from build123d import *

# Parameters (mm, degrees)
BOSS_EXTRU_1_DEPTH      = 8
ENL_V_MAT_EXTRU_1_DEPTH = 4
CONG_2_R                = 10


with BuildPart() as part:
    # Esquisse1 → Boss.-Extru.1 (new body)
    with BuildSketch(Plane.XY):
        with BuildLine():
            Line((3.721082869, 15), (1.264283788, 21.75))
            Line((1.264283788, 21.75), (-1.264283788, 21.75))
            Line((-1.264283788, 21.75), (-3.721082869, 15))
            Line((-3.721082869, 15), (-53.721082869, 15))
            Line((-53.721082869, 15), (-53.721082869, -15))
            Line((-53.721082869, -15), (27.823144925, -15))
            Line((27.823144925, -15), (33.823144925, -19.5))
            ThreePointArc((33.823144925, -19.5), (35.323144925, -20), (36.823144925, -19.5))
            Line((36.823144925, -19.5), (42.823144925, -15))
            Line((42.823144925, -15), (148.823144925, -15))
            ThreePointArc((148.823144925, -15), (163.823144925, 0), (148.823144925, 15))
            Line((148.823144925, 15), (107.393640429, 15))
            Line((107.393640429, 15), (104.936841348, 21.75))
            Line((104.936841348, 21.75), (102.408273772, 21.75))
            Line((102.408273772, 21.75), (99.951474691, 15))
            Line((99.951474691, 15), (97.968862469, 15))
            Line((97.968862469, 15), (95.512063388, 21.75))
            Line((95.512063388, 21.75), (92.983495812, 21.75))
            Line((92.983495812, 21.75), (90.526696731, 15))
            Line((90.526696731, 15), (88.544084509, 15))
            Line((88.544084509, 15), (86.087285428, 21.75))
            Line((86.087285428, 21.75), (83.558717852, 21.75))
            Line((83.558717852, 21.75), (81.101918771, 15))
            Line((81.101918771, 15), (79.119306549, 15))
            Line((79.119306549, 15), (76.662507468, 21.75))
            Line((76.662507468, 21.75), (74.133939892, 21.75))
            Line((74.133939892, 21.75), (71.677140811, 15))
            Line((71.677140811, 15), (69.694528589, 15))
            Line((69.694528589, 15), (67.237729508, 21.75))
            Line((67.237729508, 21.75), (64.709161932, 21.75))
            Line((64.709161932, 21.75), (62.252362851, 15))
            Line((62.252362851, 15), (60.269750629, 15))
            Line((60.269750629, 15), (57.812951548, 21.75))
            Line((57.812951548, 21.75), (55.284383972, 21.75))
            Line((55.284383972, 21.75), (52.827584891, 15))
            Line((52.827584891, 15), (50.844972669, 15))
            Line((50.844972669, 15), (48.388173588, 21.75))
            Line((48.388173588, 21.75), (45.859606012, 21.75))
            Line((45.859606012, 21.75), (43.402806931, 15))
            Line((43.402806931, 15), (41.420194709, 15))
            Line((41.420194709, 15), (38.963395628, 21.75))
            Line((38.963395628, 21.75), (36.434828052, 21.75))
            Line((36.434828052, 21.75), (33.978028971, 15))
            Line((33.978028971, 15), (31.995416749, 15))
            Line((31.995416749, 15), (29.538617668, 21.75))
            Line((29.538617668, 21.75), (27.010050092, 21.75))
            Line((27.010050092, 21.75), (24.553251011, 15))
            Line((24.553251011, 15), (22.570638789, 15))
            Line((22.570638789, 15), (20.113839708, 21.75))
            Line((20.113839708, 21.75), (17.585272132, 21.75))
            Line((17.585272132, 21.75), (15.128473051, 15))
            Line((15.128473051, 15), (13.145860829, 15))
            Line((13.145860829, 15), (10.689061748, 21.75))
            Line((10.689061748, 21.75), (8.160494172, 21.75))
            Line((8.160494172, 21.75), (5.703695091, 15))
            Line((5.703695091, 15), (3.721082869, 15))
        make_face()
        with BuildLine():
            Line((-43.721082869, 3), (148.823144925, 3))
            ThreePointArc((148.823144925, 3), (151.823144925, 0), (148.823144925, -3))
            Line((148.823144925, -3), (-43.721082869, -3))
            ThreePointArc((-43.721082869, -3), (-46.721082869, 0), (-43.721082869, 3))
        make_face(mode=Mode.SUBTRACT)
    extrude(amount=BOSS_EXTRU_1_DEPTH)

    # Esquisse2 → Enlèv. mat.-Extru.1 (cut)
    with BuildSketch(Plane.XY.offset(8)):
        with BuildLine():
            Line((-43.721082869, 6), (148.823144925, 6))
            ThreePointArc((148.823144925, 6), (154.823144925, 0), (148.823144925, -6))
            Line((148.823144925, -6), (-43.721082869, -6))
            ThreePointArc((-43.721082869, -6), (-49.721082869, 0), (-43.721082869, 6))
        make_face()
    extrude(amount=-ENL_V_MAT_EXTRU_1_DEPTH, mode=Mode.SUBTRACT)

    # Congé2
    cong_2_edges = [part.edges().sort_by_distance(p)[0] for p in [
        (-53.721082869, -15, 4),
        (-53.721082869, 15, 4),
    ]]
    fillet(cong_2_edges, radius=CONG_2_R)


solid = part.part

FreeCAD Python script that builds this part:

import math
import FreeCAD as App
import Part
import Sketcher
from FreeCAD import Vector
Q = App.Units.Quantity


def edges_at(feature, points):
    """Names of the edges that pass closest to the given points."""
    edges = feature.Shape.Edges
    near = lambda p: min(range(len(edges)), key=lambda i: edges[i].distToShape(Part.Vertex(*p))[0])
    return sorted({f"Edge{near(p) + 1}" for p in points})

doc = App.newDocument("Part")
params = doc.addObject("Spreadsheet::Sheet", "Params")
for row, (alias, value) in enumerate([
    ("sketch1_radius", "15 mm"),
    ("sketch1_radius2", "3 mm"),
    ("sketch1_radius3", "2.5 mm"),
    ("sketch1_width", "50 mm"),
    ("sketch1_width2", "106 mm"),
    ("pad1_length", "8 mm"),
    ("sketch2_radius", "6 mm"),
    ("pocket1_length", "4 mm"),
    ("fillet_radius", "10 mm"),
], start=1):
    params.set(f"A{row}", alias)
    params.set(f"B{row}", "=" + value)
    params.setAlias(f"B{row}", alias)

body = doc.addObject("PartDesign::Body", "Body")

sketch1 = body.newObject("Sketcher::SketchObject", "Sketch")
sketch1.AttachmentSupport = (doc.getObject("XY_Plane"), [""])
sketch1.MapMode = "FlatFace"
sketch1.addGeometry(Part.LineSegment(Vector(3.7, 15, 0), Vector(1.3, 21.8, 0)), False)
sketch1.addGeometry(Part.LineSegment(Vector(1.3, 21.8, 0), Vector(-1.3, 21.8, 0)), False)
sketch1.addGeometry(Part.LineSegment(Vector(-1.3, 21.8, 0), Vector(-3.7, 15, 0)), False)
sketch1.addGeometry(Part.LineSegment(Vector(-3.7, 15, 0), Vector(-53.7, 15, 0)), False)
sketch1.addGeometry(Part.LineSegment(Vector(-53.7, 15, 0), Vector(-53.7, -15, 0)), False)
sketch1.addGeometry(Part.LineSegment(Vector(-53.7, -15, 0), Vector(27.8, -15, 0)), False)
sketch1.addGeometry(Part.LineSegment(Vector(27.8, -15, 0), Vector(33.8, -19.5, 0)), False)
sketch1.addGeometry(Part.ArcOfCircle(Part.Circle(Vector(35.3, -17.5, 0), Vector(0, 0, 1), 2.5), math.radians(-127), math.radians(-53)), False)
sketch1.addGeometry(Part.LineSegment(Vector(36.8, -19.5, 0), Vector(42.8, -15, 0)), False)
sketch1.addGeometry(Part.LineSegment(Vector(42.8, -15, 0), Vector(148.8, -15, 0)), False)
sketch1.addGeometry(Part.ArcOfCircle(Part.Circle(Vector(148.8, 0, 0), Vector(0, 0, 1), 15), math.radians(-90), math.radians(90)), False)
sketch1.addGeometry(Part.LineSegment(Vector(148.8, 15, 0), Vector(107.4, 15, 0)), False)
sketch1.addGeometry(Part.LineSegment(Vector(107.4, 15, 0), Vector(104.9, 21.8, 0)), False)
sketch1.addGeometry(Part.LineSegment(Vector(104.9, 21.8, 0), Vector(102.4, 21.8, 0)), False)
sketch1.addGeometry(Part.LineSegment(Vector(102.4, 21.8, 0), Vector(100, 15, 0)), False)
sketch1.addGeometry(Part.LineSegment(Vector(100, 15, 0), Vector(98, 15, 0)), False)
sketch1.addGeometry(Part.LineSegment(Vector(98, 15, 0), Vector(95.5, 21.8, 0)), False)
sketch1.addGeometry(Part.LineSegment(Vector(95.5, 21.8, 0), Vector(93, 21.8, 0)), False)
sketch1.addGeometry(Part.LineSegment(Vector(93, 21.8, 0), Vector(90.5, 15, 0)), False)
sketch1.addGeometry(Part.LineSegment(Vector(90.5, 15, 0), Vector(88.5, 15, 0)), False)
sketch1.addGeometry(Part.LineSegment(Vector(88.5, 15, 0), Vector(86.1, 21.8, 0)), False)
sketch1.addGeometry(Part.LineSegment(Vector(86.1, 21.8, 0), Vector(83.6, 21.8, 0)), False)
sketch1.addGeometry(Part.LineSegment(Vector(83.6, 21.8, 0), Vector(81.1, 15, 0)), False)
sketch1.addGeometry(Part.LineSegment(Vector(81.1, 15, 0), Vector(79.1, 15, 0)), False)
sketch1.addGeometry(Part.LineSegment(Vector(79.1, 15, 0), Vector(76.7, 21.8, 0)), False)
sketch1.addGeometry(Part.LineSegment(Vector(76.7, 21.8, 0), Vector(74.1, 21.8, 0)), False)
sketch1.addGeometry(Part.LineSegment(Vector(74.1, 21.8, 0), Vector(71.7, 15, 0)), False)
sketch1.addGeometry(Part.LineSegment(Vector(71.7, 15, 0), Vector(69.7, 15, 0)), False)
sketch1.addGeometry(Part.LineSegment(Vector(69.7, 15, 0), Vector(67.2, 21.8, 0)), False)
sketch1.addGeometry(Part.LineSegment(Vector(67.2, 21.8, 0), Vector(64.7, 21.8, 0)), False)
sketch1.addGeometry(Part.LineSegment(Vector(64.7, 21.8, 0), Vector(62.3, 15, 0)), False)
sketch1.addGeometry(Part.LineSegment(Vector(62.3, 15, 0), Vector(60.3, 15, 0)), False)
sketch1.addGeometry(Part.LineSegment(Vector(60.3, 15, 0), Vector(57.8, 21.8, 0)), False)
sketch1.addGeometry(Part.LineSegment(Vector(57.8, 21.8, 0), Vector(55.3, 21.8, 0)), False)
sketch1.addGeometry(Part.LineSegment(Vector(55.3, 21.8, 0), Vector(52.8, 15, 0)), False)
sketch1.addGeometry(Part.LineSegment(Vector(52.8, 15, 0), Vector(50.8, 15, 0)), False)
sketch1.addGeometry(Part.LineSegment(Vector(50.8, 15, 0), Vector(48.4, 21.8, 0)), False)
sketch1.addGeometry(Part.LineSegment(Vector(48.4, 21.8, 0), Vector(45.9, 21.8, 0)), False)
sketch1.addGeometry(Part.LineSegment(Vector(45.9, 21.8, 0), Vector(43.4, 15, 0)), False)
sketch1.addGeometry(Part.LineSegment(Vector(43.4, 15, 0), Vector(41.4, 15, 0)), False)
sketch1.addGeometry(Part.LineSegment(Vector(41.4, 15, 0), Vector(39, 21.8, 0)), False)
sketch1.addGeometry(Part.LineSegment(Vector(39, 21.8, 0), Vector(36.4, 21.8, 0)), False)
sketch1.addGeometry(Part.LineSegment(Vector(36.4, 21.8, 0), Vector(34, 15, 0)), False)
sketch1.addGeometry(Part.LineSegment(Vector(34, 15, 0), Vector(32, 15, 0)), False)
sketch1.addGeometry(Part.LineSegment(Vector(32, 15, 0), Vector(29.5, 21.8, 0)), False)
sketch1.addGeometry(Part.LineSegment(Vector(29.5, 21.8, 0), Vector(27, 21.8, 0)), False)
sketch1.addGeometry(Part.LineSegment(Vector(27, 21.8, 0), Vector(24.6, 15, 0)), False)
sketch1.addGeometry(Part.LineSegment(Vector(24.6, 15, 0), Vector(22.6, 15, 0)), False)
sketch1.addGeometry(Part.LineSegment(Vector(22.6, 15, 0), Vector(20.1, 21.8, 0)), False)
sketch1.addGeometry(Part.LineSegment(Vector(20.1, 21.8, 0), Vector(17.6, 21.8, 0)), False)
sketch1.addGeometry(Part.LineSegment(Vector(17.6, 21.8, 0), Vector(15.1, 15, 0)), False)
sketch1.addGeometry(Part.LineSegment(Vector(15.1, 15, 0), Vector(13.1, 15, 0)), False)
sketch1.addGeometry(Part.LineSegment(Vector(13.1, 15, 0), Vector(10.7, 21.8, 0)), False)
sketch1.addGeometry(Part.LineSegment(Vector(10.7, 21.8, 0), Vector(8.2, 21.8, 0)), False)
sketch1.addGeometry(Part.LineSegment(Vector(8.2, 21.8, 0), Vector(5.7, 15, 0)), False)
sketch1.addGeometry(Part.LineSegment(Vector(5.7, 15, 0), Vector(3.7, 15, 0)), False)
sketch1.addGeometry(Part.ArcOfCircle(Part.Circle(Vector(-43.7, 0, 0), Vector(0, 0, 1), 3), math.radians(90), math.radians(270)), False)
sketch1.addGeometry(Part.LineSegment(Vector(-43.7, 3, 0), Vector(148.8, 3, 0)), False)
sketch1.addGeometry(Part.ArcOfCircle(Part.Circle(Vector(148.8, 0, 0), Vector(0, 0, 1), 3), math.radians(-90), math.radians(90)), False)
sketch1.addGeometry(Part.LineSegment(Vector(148.8, -3, 0), Vector(-43.7, -3, 0)), False)
sketch1.addConstraint(Sketcher.Constraint("Coincident", 0, 2, 1, 1))
sketch1.addConstraint(Sketcher.Constraint("Coincident", 1, 2, 2, 1))
sketch1.addConstraint(Sketcher.Constraint("Coincident", 2, 2, 3, 1))
sketch1.addConstraint(Sketcher.Constraint("Coincident", 3, 2, 4, 1))
sketch1.addConstraint(Sketcher.Constraint("Coincident", 4, 2, 5, 1))
sketch1.addConstraint(Sketcher.Constraint("Coincident", 5, 2, 6, 1))
sketch1.addConstraint(Sketcher.Constraint("Tangent", 6, 2, 7, 1))
sketch1.addConstraint(Sketcher.Constraint("Tangent", 7, 2, 8, 1))
sketch1.addConstraint(Sketcher.Constraint("Coincident", 8, 2, 9, 1))
sketch1.addConstraint(Sketcher.Constraint("Tangent", 9, 2, 10, 1))
sketch1.addConstraint(Sketcher.Constraint("Tangent", 10, 2, 11, 1))
sketch1.addConstraint(Sketcher.Constraint("Coincident", 11, 2, 12, 1))
sketch1.addConstraint(Sketcher.Constraint("Coincident", 12, 2, 13, 1))
sketch1.addConstraint(Sketcher.Constraint("Coincident", 13, 2, 14, 1))
sketch1.addConstraint(Sketcher.Constraint("Coincident", 14, 2, 15, 1))
sketch1.addConstraint(Sketcher.Constraint("Coincident", 15, 2, 16, 1))
sketch1.addConstraint(Sketcher.Constraint("Coincident", 16, 2, 17, 1))
sketch1.addConstraint(Sketcher.Constraint("Coincident", 17, 2, 18, 1))
sketch1.addConstraint(Sketcher.Constraint("Coincident", 18, 2, 19, 1))
sketch1.addConstraint(Sketcher.Constraint("Coincident", 19, 2, 20, 1))
sketch1.addConstraint(Sketcher.Constraint("Coincident", 20, 2, 21, 1))
sketch1.addConstraint(Sketcher.Constraint("Coincident", 21, 2, 22, 1))
sketch1.addConstraint(Sketcher.Constraint("Coincident", 22, 2, 23, 1))
sketch1.addConstraint(Sketcher.Constraint("Coincident", 23, 2, 24, 1))
sketch1.addConstraint(Sketcher.Constraint("Coincident", 24, 2, 25, 1))
sketch1.addConstraint(Sketcher.Constraint("Coincident", 25, 2, 26, 1))
sketch1.addConstraint(Sketcher.Constraint("Coincident", 26, 2, 27, 1))
sketch1.addConstraint(Sketcher.Constraint("Coincident", 27, 2, 28, 1))
sketch1.addConstraint(Sketcher.Constraint("Coincident", 28, 2, 29, 1))
sketch1.addConstraint(Sketcher.Constraint("Coincident", 29, 2, 30, 1))
sketch1.addConstraint(Sketcher.Constraint("Coincident", 30, 2, 31, 1))
sketch1.addConstraint(Sketcher.Constraint("Coincident", 31, 2, 32, 1))
sketch1.addConstraint(Sketcher.Constraint("Coincident", 32, 2, 33, 1))
sketch1.addConstraint(Sketcher.Constraint("Coincident", 33, 2, 34, 1))
sketch1.addConstraint(Sketcher.Constraint("Coincident", 34, 2, 35, 1))
sketch1.addConstraint(Sketcher.Constraint("Coincident", 35, 2, 36, 1))
sketch1.addConstraint(Sketcher.Constraint("Coincident", 36, 2, 37, 1))
sketch1.addConstraint(Sketcher.Constraint("Coincident", 37, 2, 38, 1))
sketch1.addConstraint(Sketcher.Constraint("Coincident", 38, 2, 39, 1))
sketch1.addConstraint(Sketcher.Constraint("Coincident", 39, 2, 40, 1))
sketch1.addConstraint(Sketcher.Constraint("Coincident", 40, 2, 41, 1))
sketch1.addConstraint(Sketcher.Constraint("Coincident", 41, 2, 42, 1))
sketch1.addConstraint(Sketcher.Constraint("Coincident", 42, 2, 43, 1))
sketch1.addConstraint(Sketcher.Constraint("Coincident", 43, 2, 44, 1))
sketch1.addConstraint(Sketcher.Constraint("Coincident", 44, 2, 45, 1))
sketch1.addConstraint(Sketcher.Constraint("Coincident", 45, 2, 46, 1))
sketch1.addConstraint(Sketcher.Constraint("Coincident", 46, 2, 47, 1))
sketch1.addConstraint(Sketcher.Constraint("Coincident", 47, 2, 48, 1))
sketch1.addConstraint(Sketcher.Constraint("Coincident", 48, 2, 49, 1))
sketch1.addConstraint(Sketcher.Constraint("Coincident", 49, 2, 50, 1))
sketch1.addConstraint(Sketcher.Constraint("Coincident", 50, 2, 51, 1))
sketch1.addConstraint(Sketcher.Constraint("Coincident", 51, 2, 52, 1))
sketch1.addConstraint(Sketcher.Constraint("Coincident", 52, 2, 53, 1))
sketch1.addConstraint(Sketcher.Constraint("Coincident", 53, 2, 54, 1))
sketch1.addConstraint(Sketcher.Constraint("Coincident", 54, 2, 55, 1))
sketch1.addConstraint(Sketcher.Constraint("Coincident", 55, 2, 0, 1))
sketch1.addConstraint(Sketcher.Constraint("Tangent", 56, 1, 57, 1))
sketch1.addConstraint(Sketcher.Constraint("Tangent", 57, 2, 58, 2))
sketch1.addConstraint(Sketcher.Constraint("Tangent", 58, 1, 59, 1))
sketch1.addConstraint(Sketcher.Constraint("Tangent", 59, 2, 56, 2))
sketch1.addConstraint(Sketcher.Constraint("Horizontal", 1))
sketch1.addConstraint(Sketcher.Constraint("Horizontal", 3))
sketch1.addConstraint(Sketcher.Constraint("Vertical", 4))
sketch1.addConstraint(Sketcher.Constraint("Horizontal", 5))
sketch1.addConstraint(Sketcher.Constraint("Horizontal", 9))
sketch1.addConstraint(Sketcher.Constraint("Horizontal", 11))
sketch1.addConstraint(Sketcher.Constraint("Horizontal", 13))
sketch1.addConstraint(Sketcher.Constraint("Horizontal", 15))
sketch1.addConstraint(Sketcher.Constraint("Horizontal", 17))
sketch1.addConstraint(Sketcher.Constraint("Horizontal", 19))
sketch1.addConstraint(Sketcher.Constraint("Horizontal", 21))
sketch1.addConstraint(Sketcher.Constraint("Horizontal", 23))
sketch1.addConstraint(Sketcher.Constraint("Horizontal", 25))
sketch1.addConstraint(Sketcher.Constraint("Horizontal", 27))
sketch1.addConstraint(Sketcher.Constraint("Horizontal", 29))
sketch1.addConstraint(Sketcher.Constraint("Horizontal", 31))
sketch1.addConstraint(Sketcher.Constraint("Horizontal", 33))
sketch1.addConstraint(Sketcher.Constraint("Horizontal", 35))
sketch1.addConstraint(Sketcher.Constraint("Horizontal", 37))
sketch1.addConstraint(Sketcher.Constraint("Horizontal", 39))
sketch1.addConstraint(Sketcher.Constraint("Horizontal", 41))
sketch1.addConstraint(Sketcher.Constraint("Horizontal", 43))
sketch1.addConstraint(Sketcher.Constraint("Horizontal", 45))
sketch1.addConstraint(Sketcher.Constraint("Horizontal", 47))
sketch1.addConstraint(Sketcher.Constraint("Horizontal", 49))
sketch1.addConstraint(Sketcher.Constraint("Horizontal", 51))
sketch1.addConstraint(Sketcher.Constraint("Horizontal", 53))
sketch1.addConstraint(Sketcher.Constraint("Horizontal", 55))
sketch1.addConstraint(Sketcher.Constraint("Horizontal", 57))
sketch1.addConstraint(Sketcher.Constraint("Horizontal", 59))
sketch1.addConstraint(Sketcher.Constraint("Coincident", 58, 3, 10, 3))
sketch1.addConstraint(Sketcher.Constraint("Symmetric", 2, 2, 55, 2, -2))
sketch1.addConstraint(Sketcher.Constraint("PointOnObject", 10, 3, -1))
sketch1.addConstraint(Sketcher.Constraint("Parallel", 0, 12))
sketch1.addConstraint(Sketcher.Constraint("Parallel", 2, 14))
sketch1.addConstraint(Sketcher.Constraint("Parallel", 12, 16))
sketch1.addConstraint(Sketcher.Constraint("Parallel", 14, 18))
sketch1.addConstraint(Sketcher.Constraint("Parallel", 16, 20))
sketch1.addConstraint(Sketcher.Constraint("Parallel", 18, 22))
sketch1.addConstraint(Sketcher.Constraint("Parallel", 20, 24))
sketch1.addConstraint(Sketcher.Constraint("Parallel", 22, 26))
sketch1.addConstraint(Sketcher.Constraint("Parallel", 24, 28))
sketch1.addConstraint(Sketcher.Constraint("Parallel", 26, 30))
sketch1.addConstraint(Sketcher.Constraint("Parallel", 28, 32))
sketch1.addConstraint(Sketcher.Constraint("Parallel", 30, 34))
sketch1.addConstraint(Sketcher.Constraint("Parallel", 32, 36))
sketch1.addConstraint(Sketcher.Constraint("Parallel", 34, 38))
sketch1.addConstraint(Sketcher.Constraint("Parallel", 36, 40))
sketch1.addConstraint(Sketcher.Constraint("Parallel", 38, 42))
sketch1.addConstraint(Sketcher.Constraint("Parallel", 40, 44))
sketch1.addConstraint(Sketcher.Constraint("Parallel", 42, 46))
sketch1.addConstraint(Sketcher.Constraint("Parallel", 44, 48))
sketch1.addConstraint(Sketcher.Constraint("Parallel", 46, 50))
sketch1.addConstraint(Sketcher.Constraint("Parallel", 48, 52))
sketch1.addConstraint(Sketcher.Constraint("Parallel", 50, 54))
sketch1.addConstraint(Sketcher.Constraint("Horizontal", 6, 2, 7, 2))
sketch1.addConstraint(Sketcher.Constraint("Horizontal", 5, 2, 8, 2))
sketch1.addConstraint(Sketcher.Constraint("Horizontal", 3, 2, 10, 2))
sketch1.addConstraint(Sketcher.Constraint("Horizontal", 1, 2, 12, 2))
sketch1.addConstraint(Sketcher.Constraint("Horizontal", 11, 2, 14, 2))
sketch1.addConstraint(Sketcher.Constraint("Horizontal", 13, 2, 16, 2))
sketch1.addConstraint(Sketcher.Constraint("Horizontal", 15, 2, 18, 2))
sketch1.addConstraint(Sketcher.Constraint("Horizontal", 17, 2, 20, 2))
sketch1.addConstraint(Sketcher.Constraint("Horizontal", 19, 2, 22, 2))
sketch1.addConstraint(Sketcher.Constraint("Horizontal", 21, 2, 24, 2))
sketch1.addConstraint(Sketcher.Constraint("Horizontal", 23, 2, 26, 2))
sketch1.addConstraint(Sketcher.Constraint("Horizontal", 25, 2, 28, 2))
sketch1.addConstraint(Sketcher.Constraint("Horizontal", 27, 2, 30, 2))
sketch1.addConstraint(Sketcher.Constraint("Horizontal", 29, 2, 32, 2))
sketch1.addConstraint(Sketcher.Constraint("Horizontal", 31, 2, 34, 2))
sketch1.addConstraint(Sketcher.Constraint("Horizontal", 33, 2, 36, 2))
sketch1.addConstraint(Sketcher.Constraint("Horizontal", 35, 2, 38, 2))
sketch1.addConstraint(Sketcher.Constraint("Horizontal", 37, 2, 40, 2))
sketch1.addConstraint(Sketcher.Constraint("Horizontal", 39, 2, 42, 2))
sketch1.addConstraint(Sketcher.Constraint("Horizontal", 41, 2, 44, 2))
sketch1.addConstraint(Sketcher.Constraint("Horizontal", 43, 2, 46, 2))
sketch1.addConstraint(Sketcher.Constraint("Horizontal", 45, 2, 48, 2))
sketch1.addConstraint(Sketcher.Constraint("Horizontal", 47, 2, 50, 2))
sketch1.addConstraint(Sketcher.Constraint("Horizontal", 49, 2, 52, 2))
sketch1.addConstraint(Sketcher.Constraint("Equal", 1, 13))
sketch1.addConstraint(Sketcher.Constraint("Equal", 13, 17))
sketch1.addConstraint(Sketcher.Constraint("Equal", 15, 19))
sketch1.addConstraint(Sketcher.Constraint("Equal", 17, 21))
sketch1.addConstraint(Sketcher.Constraint("Equal", 19, 23))
sketch1.addConstraint(Sketcher.Constraint("Equal", 21, 25))
sketch1.addConstraint(Sketcher.Constraint("Equal", 23, 27))
sketch1.addConstraint(Sketcher.Constraint("Equal", 25, 29))
sketch1.addConstraint(Sketcher.Constraint("Equal", 27, 31))
sketch1.addConstraint(Sketcher.Constraint("Equal", 29, 33))
sketch1.addConstraint(Sketcher.Constraint("Equal", 31, 35))
sketch1.addConstraint(Sketcher.Constraint("Equal", 33, 37))
sketch1.addConstraint(Sketcher.Constraint("Equal", 35, 39))
sketch1.addConstraint(Sketcher.Constraint("Equal", 37, 41))
sketch1.addConstraint(Sketcher.Constraint("Equal", 39, 43))
sketch1.addConstraint(Sketcher.Constraint("Equal", 41, 45))
sketch1.addConstraint(Sketcher.Constraint("Equal", 43, 47))
sketch1.addConstraint(Sketcher.Constraint("Equal", 45, 49))
sketch1.addConstraint(Sketcher.Constraint("Equal", 47, 51))
sketch1.addConstraint(Sketcher.Constraint("Equal", 49, 53))
sketch1.addConstraint(Sketcher.Constraint("Equal", 51, 55))
sketch1.addConstraint(Sketcher.Constraint("Equal", 0, 2))
sketch1.addConstraint(Sketcher.Constraint("Radius", 10, 15.0))
sketch1.addConstraint(Sketcher.Constraint("Radius", 56, 3.0))
sketch1.addConstraint(Sketcher.Constraint("Radius", 7, 2.5))
sketch1.addConstraint(Sketcher.Constraint("DistanceX", 3, 2, 3, 1, 50.0))
sketch1.addConstraint(Sketcher.Constraint("DistanceX", 9, 1, 9, 2, 106.0))
sketch1.addConstraint(Sketcher.Constraint("Angle", 0, Q("110 deg")))
sketch1.addConstraint(Sketcher.Constraint("Distance", 6, 7.5))
sketch1.addConstraint(Sketcher.Constraint("DistanceY", 7, 3, -1, 1, 17.5))
sketch1.addConstraint(Sketcher.Constraint("DistanceY", -1, 1, 0, 2, 21.75))
sketch1.addConstraint(Sketcher.Constraint("DistanceX", 1, 2, 1, 1, 2.528568))
sketch1.addConstraint(Sketcher.Constraint("DistanceX", 5, 1, 5, 2, 81.544228))
sketch1.addConstraint(Sketcher.Constraint("DistanceX", 11, 2, 11, 1, 41.429504))
sketch1.addConstraint(Sketcher.Constraint("DistanceX", 57, 1, 57, 2, 192.544228))
sketch1.setExpression("Constraints[161]", "Params.sketch1_radius")
sketch1.setExpression("Constraints[162]", "Params.sketch1_radius2")
sketch1.setExpression("Constraints[163]", "Params.sketch1_radius3")
sketch1.setExpression("Constraints[164]", "Params.sketch1_width")
sketch1.setExpression("Constraints[165]", "Params.sketch1_width2")
pad1 = body.newObject("PartDesign::Pad", "Pad")
pad1.Profile = sketch1
pad1.setExpression("Length", "Params.pad1_length")

sketch2 = body.newObject("Sketcher::SketchObject", "Sketch001")
sketch2.AttachmentSupport = (doc.getObject("XY_Plane"), [""])
sketch2.MapMode = "FlatFace"
sketch2.AttachmentOffset = App.Placement(Vector(0, 0, 8), App.Rotation())
sketch2.addGeometry(Part.LineSegment(Vector(149, 6, 0), Vector(-44, 6, 0)), False)
sketch2.addGeometry(Part.ArcOfCircle(Part.Circle(Vector(-44, 0, 0), Vector(0, 0, 1), 6), math.radians(90), math.radians(270)), False)
sketch2.addGeometry(Part.LineSegment(Vector(-44, -6, 0), Vector(149, -6, 0)), False)
sketch2.addGeometry(Part.ArcOfCircle(Part.Circle(Vector(149, 0, 0), Vector(0, 0, 1), 6), math.radians(-90), math.radians(90)), False)
sketch2.addConstraint(Sketcher.Constraint("Tangent", 0, 2, 1, 1))
sketch2.addConstraint(Sketcher.Constraint("Tangent", 1, 2, 2, 1))
sketch2.addConstraint(Sketcher.Constraint("Tangent", 2, 2, 3, 1))
sketch2.addConstraint(Sketcher.Constraint("Tangent", 3, 2, 0, 1))
sketch2.addConstraint(Sketcher.Constraint("Horizontal", 0))
sketch2.addConstraint(Sketcher.Constraint("Horizontal", 2))
sketch2.addConstraint(Sketcher.Constraint("PointOnObject", 1, 3, -1))
sketch2.addConstraint(Sketcher.Constraint("Radius", 1, 6.0))
sketch2.addConstraint(Sketcher.Constraint("DistanceX", 0, 2, 0, 1, 192.544228))
sketch2.addConstraint(Sketcher.Constraint("DistanceX", 1, 3, -1, 1, 43.721083))
sketch2.setExpression("Constraints[7]", "Params.sketch2_radius")
pocket1 = body.newObject("PartDesign::Pocket", "Pocket")
pocket1.Profile = sketch2
pocket1.setExpression("Length", "Params.pocket1_length")
doc.recompute()

fillet = body.newObject("PartDesign::Fillet", "Fillet")
fillet.Base = (pocket1, edges_at(pocket1, [(-53.721, -15, 4), (-53.721, 15, 4)]))
fillet.setExpression("Radius", "Params.fillet_radius")

doc.recompute()
